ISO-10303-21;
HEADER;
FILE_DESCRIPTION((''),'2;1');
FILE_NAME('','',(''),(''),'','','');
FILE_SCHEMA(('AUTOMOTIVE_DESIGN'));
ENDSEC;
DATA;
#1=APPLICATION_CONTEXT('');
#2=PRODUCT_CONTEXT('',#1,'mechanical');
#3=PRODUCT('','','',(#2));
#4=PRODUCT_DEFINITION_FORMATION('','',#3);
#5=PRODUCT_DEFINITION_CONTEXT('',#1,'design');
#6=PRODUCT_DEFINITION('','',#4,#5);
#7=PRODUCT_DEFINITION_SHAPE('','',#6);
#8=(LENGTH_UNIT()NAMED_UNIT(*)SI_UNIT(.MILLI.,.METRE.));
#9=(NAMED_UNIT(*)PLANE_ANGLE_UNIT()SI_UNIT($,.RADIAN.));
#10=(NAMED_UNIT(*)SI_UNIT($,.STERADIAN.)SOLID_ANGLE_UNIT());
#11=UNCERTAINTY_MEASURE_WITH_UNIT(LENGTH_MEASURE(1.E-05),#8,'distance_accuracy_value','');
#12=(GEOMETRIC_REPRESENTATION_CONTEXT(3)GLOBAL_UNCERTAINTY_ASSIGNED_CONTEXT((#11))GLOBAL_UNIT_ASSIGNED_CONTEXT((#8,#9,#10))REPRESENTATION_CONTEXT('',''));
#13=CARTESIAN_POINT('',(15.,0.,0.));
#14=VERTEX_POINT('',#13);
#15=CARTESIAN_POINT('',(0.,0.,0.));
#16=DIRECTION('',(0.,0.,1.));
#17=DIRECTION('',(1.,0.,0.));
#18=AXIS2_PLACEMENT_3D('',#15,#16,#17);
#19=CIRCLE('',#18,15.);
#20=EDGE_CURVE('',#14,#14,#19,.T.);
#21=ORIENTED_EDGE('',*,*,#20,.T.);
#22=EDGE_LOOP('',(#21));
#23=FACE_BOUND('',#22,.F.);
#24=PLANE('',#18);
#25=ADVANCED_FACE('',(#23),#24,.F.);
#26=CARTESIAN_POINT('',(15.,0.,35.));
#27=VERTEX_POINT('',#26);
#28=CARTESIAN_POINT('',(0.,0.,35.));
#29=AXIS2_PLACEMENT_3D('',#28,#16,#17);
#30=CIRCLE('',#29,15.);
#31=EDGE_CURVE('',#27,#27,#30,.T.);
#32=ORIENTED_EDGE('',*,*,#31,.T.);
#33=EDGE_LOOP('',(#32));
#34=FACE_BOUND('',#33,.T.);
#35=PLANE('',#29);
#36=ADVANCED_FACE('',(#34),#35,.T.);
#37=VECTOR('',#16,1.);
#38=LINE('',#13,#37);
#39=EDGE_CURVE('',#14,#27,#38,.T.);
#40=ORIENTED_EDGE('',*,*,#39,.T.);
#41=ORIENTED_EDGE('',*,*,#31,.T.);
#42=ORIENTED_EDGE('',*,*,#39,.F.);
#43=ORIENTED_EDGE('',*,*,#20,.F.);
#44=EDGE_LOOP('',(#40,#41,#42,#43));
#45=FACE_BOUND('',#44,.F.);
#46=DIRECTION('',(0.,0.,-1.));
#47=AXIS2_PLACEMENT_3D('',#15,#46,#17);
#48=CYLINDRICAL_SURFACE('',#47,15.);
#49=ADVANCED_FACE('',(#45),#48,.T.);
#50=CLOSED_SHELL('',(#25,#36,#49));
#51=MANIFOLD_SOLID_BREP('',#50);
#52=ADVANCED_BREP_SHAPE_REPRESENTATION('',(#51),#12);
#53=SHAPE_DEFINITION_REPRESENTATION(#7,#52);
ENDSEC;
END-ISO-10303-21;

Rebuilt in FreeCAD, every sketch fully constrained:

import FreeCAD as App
import Part
import Sketcher

V = App.Vector

doc = App.newDocument("Part")
body = doc.addObject("PartDesign::Body", "Body")

# Sketch on XY plane
sketch1 = body.newObject("Sketcher::SketchObject", "Sketch")
sketch1.AttachmentSupport = (doc.getObject("XY_Plane"), [""])
sketch1.MapMode = "FlatFace"
sketch1.addGeometry(Part.Circle(V(0, 0, 0), V(0, 0, 1), 15), False)
sketch1.addConstraint([
    Sketcher.Constraint("Coincident", 0, 3, -1, 1),
    Sketcher.Constraint("Diameter", 0, 30.0),
])
pad1 = body.newObject("PartDesign::Pad", "Pad")
pad1.Profile = sketch1
pad1.Length = 35

doc.recompute()
